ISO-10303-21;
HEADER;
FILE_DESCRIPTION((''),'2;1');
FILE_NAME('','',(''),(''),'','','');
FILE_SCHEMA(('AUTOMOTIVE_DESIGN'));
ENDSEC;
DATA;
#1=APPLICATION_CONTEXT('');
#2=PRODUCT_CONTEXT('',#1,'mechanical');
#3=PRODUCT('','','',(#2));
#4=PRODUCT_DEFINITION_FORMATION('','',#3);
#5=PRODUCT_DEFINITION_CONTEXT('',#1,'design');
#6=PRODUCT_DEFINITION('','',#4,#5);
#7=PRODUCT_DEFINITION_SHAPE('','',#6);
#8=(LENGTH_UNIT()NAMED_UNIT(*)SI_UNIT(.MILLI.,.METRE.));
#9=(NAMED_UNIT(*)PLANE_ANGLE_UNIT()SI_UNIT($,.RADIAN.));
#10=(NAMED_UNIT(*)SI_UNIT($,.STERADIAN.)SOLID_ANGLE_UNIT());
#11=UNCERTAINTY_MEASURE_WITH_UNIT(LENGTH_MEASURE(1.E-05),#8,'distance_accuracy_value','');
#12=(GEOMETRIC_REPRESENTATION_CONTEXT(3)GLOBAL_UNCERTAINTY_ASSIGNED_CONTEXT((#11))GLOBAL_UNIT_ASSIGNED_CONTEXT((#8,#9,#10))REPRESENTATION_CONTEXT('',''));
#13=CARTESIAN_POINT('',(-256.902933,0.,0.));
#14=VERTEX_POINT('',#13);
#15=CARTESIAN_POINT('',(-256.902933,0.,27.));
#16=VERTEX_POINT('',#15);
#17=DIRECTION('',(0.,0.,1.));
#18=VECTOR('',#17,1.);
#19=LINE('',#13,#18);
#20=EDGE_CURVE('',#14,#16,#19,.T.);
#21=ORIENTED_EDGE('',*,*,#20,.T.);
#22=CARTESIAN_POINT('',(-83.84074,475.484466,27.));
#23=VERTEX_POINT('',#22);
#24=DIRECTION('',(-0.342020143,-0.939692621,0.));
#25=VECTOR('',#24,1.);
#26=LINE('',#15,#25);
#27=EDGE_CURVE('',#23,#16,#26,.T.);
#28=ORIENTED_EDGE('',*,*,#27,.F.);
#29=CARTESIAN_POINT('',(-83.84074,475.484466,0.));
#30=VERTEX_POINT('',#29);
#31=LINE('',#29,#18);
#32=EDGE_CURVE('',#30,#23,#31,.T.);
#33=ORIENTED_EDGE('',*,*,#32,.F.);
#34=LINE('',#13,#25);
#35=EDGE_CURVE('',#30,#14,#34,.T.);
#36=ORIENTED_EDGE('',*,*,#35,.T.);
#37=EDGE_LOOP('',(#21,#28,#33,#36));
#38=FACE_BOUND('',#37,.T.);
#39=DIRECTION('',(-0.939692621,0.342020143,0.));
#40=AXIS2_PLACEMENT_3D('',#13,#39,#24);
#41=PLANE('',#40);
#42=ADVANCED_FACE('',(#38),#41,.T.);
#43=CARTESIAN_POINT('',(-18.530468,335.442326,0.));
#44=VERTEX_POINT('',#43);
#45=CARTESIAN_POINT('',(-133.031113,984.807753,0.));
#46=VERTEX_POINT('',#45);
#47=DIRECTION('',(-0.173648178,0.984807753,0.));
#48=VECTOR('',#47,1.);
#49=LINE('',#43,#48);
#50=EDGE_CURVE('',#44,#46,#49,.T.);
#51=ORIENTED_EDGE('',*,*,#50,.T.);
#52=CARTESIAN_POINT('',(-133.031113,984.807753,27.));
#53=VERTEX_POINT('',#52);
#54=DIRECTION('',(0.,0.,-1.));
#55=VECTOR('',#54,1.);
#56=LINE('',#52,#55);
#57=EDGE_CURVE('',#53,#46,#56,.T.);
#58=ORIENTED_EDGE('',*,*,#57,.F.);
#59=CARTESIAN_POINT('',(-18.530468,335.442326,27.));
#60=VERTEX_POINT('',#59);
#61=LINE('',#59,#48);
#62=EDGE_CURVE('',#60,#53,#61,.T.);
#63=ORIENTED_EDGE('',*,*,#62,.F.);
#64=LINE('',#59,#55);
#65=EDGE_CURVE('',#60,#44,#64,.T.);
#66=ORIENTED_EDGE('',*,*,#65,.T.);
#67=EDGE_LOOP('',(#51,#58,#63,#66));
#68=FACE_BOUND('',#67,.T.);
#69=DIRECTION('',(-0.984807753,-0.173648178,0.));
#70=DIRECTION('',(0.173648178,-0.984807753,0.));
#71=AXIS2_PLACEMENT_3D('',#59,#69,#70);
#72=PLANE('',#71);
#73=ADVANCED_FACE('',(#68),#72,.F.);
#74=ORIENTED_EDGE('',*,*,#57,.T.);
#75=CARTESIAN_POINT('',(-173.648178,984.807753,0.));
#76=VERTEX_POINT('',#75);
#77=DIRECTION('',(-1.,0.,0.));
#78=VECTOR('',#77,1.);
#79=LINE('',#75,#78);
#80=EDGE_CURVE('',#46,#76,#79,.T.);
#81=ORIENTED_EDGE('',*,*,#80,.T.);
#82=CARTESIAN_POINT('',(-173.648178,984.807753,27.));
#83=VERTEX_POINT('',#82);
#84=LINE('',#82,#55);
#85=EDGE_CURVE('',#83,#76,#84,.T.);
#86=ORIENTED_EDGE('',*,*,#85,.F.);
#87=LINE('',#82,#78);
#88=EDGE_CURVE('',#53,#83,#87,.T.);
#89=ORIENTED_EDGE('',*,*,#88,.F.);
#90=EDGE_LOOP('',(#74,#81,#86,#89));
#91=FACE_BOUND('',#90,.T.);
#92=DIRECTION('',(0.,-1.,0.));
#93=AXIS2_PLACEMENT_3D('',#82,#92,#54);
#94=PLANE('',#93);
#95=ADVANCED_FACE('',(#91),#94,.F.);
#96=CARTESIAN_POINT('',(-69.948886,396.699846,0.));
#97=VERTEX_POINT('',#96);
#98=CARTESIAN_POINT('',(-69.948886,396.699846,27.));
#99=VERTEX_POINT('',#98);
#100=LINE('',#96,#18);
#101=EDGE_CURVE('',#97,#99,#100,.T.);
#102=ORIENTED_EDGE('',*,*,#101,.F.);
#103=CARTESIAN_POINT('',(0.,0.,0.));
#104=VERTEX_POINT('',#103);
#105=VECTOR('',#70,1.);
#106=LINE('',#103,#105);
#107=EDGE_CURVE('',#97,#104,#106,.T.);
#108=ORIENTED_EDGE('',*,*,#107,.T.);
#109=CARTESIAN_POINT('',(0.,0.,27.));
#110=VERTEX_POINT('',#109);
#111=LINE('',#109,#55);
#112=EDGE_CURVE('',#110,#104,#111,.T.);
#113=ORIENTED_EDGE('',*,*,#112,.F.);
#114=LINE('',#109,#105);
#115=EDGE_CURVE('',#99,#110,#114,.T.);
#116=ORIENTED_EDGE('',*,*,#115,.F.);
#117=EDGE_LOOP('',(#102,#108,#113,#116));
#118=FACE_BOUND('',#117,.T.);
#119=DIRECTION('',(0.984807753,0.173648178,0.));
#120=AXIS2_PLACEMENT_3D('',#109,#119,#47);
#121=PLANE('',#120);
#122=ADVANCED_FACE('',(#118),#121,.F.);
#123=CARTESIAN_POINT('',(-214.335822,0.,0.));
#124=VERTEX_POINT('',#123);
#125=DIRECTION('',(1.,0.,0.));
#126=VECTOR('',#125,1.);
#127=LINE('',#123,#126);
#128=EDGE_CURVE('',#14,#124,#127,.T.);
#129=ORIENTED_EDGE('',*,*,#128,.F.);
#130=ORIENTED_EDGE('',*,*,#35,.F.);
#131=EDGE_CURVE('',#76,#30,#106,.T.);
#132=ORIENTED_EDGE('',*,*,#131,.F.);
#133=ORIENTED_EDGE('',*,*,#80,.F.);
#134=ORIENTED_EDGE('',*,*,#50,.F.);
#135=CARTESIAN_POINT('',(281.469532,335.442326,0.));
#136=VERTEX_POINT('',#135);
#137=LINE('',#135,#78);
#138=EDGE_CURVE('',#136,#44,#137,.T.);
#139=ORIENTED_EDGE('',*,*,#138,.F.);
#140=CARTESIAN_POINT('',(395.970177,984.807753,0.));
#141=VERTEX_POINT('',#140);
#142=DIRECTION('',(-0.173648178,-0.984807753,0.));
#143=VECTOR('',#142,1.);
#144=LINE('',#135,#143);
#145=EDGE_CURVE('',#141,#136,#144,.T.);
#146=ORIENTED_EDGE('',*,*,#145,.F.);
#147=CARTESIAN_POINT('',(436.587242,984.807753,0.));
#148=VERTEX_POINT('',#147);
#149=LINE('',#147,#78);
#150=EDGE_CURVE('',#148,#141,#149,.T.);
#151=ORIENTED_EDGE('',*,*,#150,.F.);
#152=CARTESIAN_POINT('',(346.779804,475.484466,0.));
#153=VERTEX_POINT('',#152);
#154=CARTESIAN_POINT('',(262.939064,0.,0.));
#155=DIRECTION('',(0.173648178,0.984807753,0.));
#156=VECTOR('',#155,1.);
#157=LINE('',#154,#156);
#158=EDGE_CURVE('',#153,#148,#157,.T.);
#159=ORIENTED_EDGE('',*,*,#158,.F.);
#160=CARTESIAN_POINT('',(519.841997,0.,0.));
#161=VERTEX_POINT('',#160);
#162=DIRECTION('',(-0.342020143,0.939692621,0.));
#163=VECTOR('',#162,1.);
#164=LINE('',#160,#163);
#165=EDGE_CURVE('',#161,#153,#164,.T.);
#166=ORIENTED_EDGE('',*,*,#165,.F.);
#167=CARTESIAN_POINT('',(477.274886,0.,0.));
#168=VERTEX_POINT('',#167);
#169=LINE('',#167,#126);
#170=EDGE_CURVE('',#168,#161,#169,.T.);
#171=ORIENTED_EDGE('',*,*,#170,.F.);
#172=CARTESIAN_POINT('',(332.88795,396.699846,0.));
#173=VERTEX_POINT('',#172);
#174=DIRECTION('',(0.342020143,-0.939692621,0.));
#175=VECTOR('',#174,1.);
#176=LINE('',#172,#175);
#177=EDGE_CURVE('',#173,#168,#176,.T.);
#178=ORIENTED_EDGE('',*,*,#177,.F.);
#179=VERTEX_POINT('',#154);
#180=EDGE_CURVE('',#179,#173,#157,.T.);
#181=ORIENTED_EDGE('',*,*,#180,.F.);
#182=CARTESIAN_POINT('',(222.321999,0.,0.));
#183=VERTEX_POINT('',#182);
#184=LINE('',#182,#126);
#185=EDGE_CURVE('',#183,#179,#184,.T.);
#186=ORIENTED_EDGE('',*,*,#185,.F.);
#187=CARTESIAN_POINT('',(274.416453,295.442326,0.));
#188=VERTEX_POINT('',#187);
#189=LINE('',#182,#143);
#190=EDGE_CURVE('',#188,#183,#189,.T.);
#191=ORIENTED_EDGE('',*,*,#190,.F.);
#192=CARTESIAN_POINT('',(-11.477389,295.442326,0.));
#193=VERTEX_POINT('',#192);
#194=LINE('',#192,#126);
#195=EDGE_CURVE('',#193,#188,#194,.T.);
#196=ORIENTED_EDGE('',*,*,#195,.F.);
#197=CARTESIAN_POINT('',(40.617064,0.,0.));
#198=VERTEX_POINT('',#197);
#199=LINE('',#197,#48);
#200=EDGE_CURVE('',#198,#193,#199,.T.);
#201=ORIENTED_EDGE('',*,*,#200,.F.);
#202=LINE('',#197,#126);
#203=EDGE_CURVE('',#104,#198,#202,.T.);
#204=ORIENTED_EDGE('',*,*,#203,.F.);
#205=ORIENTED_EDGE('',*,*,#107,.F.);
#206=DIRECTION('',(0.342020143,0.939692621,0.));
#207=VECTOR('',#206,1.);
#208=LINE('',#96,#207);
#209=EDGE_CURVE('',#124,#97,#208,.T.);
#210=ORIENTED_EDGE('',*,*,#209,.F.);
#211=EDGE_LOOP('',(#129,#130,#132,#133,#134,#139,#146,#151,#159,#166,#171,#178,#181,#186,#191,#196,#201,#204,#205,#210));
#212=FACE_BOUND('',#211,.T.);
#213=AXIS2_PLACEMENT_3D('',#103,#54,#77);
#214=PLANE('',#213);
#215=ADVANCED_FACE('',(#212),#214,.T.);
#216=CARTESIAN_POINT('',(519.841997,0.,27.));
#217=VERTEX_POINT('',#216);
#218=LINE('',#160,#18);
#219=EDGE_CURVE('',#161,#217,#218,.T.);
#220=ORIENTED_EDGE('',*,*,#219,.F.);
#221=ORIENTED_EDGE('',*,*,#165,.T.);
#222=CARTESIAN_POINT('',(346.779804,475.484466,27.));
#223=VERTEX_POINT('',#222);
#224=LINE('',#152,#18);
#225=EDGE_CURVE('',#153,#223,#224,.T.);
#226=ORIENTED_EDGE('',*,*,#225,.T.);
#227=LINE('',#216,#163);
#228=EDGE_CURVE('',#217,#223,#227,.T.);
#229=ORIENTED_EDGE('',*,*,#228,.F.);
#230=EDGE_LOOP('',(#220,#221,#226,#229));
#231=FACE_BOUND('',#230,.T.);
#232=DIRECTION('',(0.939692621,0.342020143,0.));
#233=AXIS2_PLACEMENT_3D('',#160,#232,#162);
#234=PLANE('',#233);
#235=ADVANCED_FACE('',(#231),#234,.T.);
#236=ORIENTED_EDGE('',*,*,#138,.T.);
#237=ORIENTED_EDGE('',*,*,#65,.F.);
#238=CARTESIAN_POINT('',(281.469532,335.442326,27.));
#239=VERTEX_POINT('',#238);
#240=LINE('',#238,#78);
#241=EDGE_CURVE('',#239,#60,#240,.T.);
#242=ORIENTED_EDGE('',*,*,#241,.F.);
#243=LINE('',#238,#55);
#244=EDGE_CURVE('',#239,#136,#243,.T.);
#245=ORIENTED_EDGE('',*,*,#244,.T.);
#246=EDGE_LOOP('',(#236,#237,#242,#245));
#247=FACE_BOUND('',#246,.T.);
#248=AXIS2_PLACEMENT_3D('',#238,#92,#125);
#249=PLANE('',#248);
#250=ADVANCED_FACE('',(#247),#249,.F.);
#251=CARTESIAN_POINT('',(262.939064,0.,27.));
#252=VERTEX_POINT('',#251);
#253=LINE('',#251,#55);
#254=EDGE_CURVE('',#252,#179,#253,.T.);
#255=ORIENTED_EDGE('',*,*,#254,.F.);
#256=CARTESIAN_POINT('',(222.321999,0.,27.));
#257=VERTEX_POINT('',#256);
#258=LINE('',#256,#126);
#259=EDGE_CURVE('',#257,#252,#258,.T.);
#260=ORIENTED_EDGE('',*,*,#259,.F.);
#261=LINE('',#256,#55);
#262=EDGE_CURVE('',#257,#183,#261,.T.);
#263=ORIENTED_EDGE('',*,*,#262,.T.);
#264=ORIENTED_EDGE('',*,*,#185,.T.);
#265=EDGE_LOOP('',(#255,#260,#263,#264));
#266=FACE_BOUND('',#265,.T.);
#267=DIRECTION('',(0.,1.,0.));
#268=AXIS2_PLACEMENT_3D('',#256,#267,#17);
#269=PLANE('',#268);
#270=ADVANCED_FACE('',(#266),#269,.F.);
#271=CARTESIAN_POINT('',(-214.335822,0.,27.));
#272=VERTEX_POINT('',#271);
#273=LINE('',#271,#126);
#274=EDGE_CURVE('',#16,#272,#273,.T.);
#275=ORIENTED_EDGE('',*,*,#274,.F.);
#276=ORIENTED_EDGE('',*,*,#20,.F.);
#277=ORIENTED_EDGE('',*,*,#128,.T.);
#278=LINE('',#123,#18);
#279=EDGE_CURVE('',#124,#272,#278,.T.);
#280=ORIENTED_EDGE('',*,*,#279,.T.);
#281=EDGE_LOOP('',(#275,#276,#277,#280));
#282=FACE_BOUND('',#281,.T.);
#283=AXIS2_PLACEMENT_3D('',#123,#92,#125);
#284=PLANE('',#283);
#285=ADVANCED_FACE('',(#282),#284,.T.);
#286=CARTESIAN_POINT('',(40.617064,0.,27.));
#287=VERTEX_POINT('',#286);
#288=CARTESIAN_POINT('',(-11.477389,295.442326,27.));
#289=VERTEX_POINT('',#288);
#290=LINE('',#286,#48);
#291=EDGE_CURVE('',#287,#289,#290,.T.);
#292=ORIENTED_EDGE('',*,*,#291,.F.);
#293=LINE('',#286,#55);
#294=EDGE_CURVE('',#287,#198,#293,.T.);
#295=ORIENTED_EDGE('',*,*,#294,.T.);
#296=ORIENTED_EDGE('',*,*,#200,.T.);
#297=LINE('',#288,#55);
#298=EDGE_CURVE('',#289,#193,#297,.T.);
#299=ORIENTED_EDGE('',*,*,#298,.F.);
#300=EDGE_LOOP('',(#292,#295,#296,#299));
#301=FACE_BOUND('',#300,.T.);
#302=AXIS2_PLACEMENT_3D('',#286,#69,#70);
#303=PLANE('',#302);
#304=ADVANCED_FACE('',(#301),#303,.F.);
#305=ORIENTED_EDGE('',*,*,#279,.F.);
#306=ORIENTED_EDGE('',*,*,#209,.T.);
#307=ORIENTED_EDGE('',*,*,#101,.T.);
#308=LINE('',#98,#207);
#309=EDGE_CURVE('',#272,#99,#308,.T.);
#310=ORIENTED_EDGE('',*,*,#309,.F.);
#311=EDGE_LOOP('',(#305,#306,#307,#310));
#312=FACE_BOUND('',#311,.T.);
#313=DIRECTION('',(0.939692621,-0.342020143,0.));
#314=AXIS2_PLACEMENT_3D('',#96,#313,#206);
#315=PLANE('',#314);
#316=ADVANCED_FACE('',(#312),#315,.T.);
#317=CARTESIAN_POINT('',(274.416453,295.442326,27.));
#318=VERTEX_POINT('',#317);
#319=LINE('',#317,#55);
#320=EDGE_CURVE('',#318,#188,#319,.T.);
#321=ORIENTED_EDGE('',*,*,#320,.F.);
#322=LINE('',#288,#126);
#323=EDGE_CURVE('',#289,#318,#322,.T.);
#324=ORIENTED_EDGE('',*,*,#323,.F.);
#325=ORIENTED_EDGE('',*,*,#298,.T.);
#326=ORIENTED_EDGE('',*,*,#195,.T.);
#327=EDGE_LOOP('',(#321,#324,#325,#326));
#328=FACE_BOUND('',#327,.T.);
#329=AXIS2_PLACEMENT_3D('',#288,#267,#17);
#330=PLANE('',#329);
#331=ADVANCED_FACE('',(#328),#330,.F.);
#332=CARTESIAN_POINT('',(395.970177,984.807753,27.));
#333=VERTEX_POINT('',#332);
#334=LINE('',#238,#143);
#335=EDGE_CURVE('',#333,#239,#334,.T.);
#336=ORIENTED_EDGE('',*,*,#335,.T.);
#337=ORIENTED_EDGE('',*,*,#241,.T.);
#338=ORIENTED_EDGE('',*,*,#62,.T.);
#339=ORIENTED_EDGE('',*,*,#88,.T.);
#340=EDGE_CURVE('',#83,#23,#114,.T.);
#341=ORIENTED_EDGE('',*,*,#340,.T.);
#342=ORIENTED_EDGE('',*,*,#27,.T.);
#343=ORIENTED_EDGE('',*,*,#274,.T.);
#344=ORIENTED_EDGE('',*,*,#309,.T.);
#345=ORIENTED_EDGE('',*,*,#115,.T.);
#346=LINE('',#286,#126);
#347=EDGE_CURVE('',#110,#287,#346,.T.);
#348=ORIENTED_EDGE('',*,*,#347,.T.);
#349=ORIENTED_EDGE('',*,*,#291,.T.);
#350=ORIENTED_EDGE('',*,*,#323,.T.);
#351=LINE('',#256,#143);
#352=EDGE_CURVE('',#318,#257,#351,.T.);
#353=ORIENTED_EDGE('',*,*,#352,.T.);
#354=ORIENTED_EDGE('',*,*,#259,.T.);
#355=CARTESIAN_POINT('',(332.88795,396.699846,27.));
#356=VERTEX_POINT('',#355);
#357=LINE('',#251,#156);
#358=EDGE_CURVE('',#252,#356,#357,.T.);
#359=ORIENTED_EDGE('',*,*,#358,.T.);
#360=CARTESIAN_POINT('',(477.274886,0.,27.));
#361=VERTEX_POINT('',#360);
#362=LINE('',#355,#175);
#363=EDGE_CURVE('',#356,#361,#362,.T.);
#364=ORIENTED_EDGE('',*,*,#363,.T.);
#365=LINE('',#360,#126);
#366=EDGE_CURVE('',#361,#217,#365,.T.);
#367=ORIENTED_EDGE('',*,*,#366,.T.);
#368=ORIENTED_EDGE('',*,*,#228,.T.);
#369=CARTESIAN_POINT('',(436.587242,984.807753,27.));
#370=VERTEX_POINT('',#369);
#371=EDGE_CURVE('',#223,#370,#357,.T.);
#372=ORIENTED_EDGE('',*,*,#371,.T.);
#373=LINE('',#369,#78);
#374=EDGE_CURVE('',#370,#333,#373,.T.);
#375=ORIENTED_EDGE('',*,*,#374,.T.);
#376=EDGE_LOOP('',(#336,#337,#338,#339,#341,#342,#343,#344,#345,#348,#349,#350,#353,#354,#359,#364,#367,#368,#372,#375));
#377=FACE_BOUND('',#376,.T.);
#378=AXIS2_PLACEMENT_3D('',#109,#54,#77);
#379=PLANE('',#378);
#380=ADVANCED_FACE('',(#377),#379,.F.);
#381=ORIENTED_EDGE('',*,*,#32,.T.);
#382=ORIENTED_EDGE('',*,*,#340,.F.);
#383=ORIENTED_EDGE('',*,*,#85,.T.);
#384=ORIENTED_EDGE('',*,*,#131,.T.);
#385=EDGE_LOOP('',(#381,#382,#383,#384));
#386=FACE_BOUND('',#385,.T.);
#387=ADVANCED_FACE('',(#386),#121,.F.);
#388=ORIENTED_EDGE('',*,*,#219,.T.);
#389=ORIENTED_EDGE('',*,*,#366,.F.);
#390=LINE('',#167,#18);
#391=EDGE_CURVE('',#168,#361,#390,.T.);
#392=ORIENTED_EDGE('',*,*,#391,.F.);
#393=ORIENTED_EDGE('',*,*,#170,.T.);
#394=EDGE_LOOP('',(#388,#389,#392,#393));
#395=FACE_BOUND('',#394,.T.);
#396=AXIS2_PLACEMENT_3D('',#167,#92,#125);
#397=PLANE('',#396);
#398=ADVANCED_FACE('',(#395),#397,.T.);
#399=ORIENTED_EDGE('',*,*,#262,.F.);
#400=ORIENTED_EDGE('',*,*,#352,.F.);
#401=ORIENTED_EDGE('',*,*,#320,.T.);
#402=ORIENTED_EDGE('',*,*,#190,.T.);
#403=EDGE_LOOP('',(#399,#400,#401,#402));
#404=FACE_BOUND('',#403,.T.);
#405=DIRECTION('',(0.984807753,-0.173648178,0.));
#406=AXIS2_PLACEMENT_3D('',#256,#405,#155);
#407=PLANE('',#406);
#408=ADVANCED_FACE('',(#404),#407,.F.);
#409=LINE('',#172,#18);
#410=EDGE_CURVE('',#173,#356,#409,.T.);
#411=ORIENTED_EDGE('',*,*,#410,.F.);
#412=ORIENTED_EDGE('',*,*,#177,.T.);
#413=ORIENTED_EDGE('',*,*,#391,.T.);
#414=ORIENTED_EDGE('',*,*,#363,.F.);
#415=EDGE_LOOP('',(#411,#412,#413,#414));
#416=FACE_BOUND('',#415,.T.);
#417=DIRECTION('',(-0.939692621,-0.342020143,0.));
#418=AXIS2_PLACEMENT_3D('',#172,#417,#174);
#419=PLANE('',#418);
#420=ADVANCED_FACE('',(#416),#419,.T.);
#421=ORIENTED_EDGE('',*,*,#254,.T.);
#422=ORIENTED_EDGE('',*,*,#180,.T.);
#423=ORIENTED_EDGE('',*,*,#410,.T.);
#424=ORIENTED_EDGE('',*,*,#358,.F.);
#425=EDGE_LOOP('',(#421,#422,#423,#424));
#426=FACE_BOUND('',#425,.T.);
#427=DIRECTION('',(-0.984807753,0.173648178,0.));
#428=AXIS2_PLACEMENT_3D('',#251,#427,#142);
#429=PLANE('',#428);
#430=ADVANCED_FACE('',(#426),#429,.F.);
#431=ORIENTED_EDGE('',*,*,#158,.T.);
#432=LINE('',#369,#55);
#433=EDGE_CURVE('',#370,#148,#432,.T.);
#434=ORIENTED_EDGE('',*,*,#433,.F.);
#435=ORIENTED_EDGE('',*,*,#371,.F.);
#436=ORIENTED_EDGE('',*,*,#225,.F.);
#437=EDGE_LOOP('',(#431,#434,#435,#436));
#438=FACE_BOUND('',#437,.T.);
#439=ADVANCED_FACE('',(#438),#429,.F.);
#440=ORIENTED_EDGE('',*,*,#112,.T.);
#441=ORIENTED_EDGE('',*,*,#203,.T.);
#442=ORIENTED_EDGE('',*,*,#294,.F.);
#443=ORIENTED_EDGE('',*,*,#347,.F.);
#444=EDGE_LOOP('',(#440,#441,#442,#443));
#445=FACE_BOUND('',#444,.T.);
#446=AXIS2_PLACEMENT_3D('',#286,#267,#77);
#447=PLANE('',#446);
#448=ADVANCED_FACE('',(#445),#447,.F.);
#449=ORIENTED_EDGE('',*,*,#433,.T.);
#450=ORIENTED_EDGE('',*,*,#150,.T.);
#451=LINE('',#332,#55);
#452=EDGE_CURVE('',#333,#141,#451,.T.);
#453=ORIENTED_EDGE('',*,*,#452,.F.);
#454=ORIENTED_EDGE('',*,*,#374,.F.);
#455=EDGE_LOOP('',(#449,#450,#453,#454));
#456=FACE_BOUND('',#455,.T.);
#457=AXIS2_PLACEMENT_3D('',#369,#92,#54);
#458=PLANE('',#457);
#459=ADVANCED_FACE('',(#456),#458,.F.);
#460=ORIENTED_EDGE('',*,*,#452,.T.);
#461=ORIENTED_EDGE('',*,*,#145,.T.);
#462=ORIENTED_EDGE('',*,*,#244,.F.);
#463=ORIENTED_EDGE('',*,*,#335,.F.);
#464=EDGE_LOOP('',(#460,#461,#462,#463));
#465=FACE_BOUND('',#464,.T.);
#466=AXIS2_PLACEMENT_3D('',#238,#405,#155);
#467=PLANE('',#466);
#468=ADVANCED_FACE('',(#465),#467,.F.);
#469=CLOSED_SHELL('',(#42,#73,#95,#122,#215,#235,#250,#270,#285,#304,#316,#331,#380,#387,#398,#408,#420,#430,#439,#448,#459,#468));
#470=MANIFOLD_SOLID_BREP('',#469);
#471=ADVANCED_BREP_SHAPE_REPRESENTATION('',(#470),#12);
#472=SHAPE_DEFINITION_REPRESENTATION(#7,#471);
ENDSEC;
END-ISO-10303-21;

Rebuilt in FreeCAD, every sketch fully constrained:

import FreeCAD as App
import Part
import Sketcher
from FreeCAD import Vector
Q = App.Units.Quantity


def add_polygon(sketch, points):
    """Adds a closed chain of lines whose ends are joined by coincident constraints."""
    first, n = sketch.GeometryCount, len(points)
    for a, b in zip(points, points[1:] + points[:1]):
        sketch.addGeometry(Part.LineSegment(App.Vector(*a, 0), App.Vector(*b, 0)), False)
    for i in range(n):
        sketch.addConstraint(Sketcher.Constraint("Coincident", first + i, 2, first + (i + 1) % n, 1))

doc = App.newDocument("Part")
body = doc.addObject("PartDesign::Body", "Body")

# Sketch on XY plane
sketch1 = body.newObject("Sketcher::SketchObject", "Sketch")
sketch1.AttachmentSupport = (doc.getObject("XY_Plane"), [""])
sketch1.MapMode = "FlatFace"
add_polygon(sketch1, [(-174, 985), (0, 0), (41, 0), (-11, 295), (274, 295), (222, 0), (263, 0), (437, 985), (396, 985), (281, 335), (-19, 335), (-133, 985)])  # lines 0-11
sketch1.addConstraint([
    Sketcher.Constraint("Horizontal", 1),
    Sketcher.Constraint("Horizontal", 3),
    Sketcher.Constraint("Horizontal", 5),
    Sketcher.Constraint("Horizontal", 7),
    Sketcher.Constraint("Horizontal", 9),
    Sketcher.Constraint("Horizontal", 11),
    Sketcher.Constraint("Coincident", 0, 2, -1, 1),
    Sketcher.Constraint("PointOnObject", 4, 2, -1),
    Sketcher.Constraint("Parallel", 0, 2),
    Sketcher.Constraint("Parallel", 4, 6),
    Sketcher.Constraint("Parallel", 6, 8),
    Sketcher.Constraint("Parallel", 2, 10),
    Sketcher.Constraint("Horizontal", 7, 2, 10, 2),
    Sketcher.Constraint("Equal", 1, 5),
    Sketcher.Constraint("Equal", 5, 7),
    Sketcher.Constraint("Equal", 7, 11),
    Sketcher.Constraint("Equal", 2, 4),
    Sketcher.Constraint("DistanceX", 9, 2, 9, 1, Q("300 mm")),
    Sketcher.Constraint("Angle", 0, Q("-80 deg")),
    Sketcher.Constraint("Distance", 0, Q("1000 mm")),
    Sketcher.Constraint("Distance", 2, Q("300 mm")),
    Sketcher.Constraint("DistanceY", 3, 2, 8, 2, Q("40 mm")),
    Sketcher.Constraint("DistanceX", -1, 1, 4, 2, Q("222.321999 mm")),
])
pad1 = body.newObject("PartDesign::Pad", "Pad")
pad1.Profile = sketch1
pad1.Length = 27

# Sketch on XY plane
sketch2 = body.newObject("Sketcher::SketchObject", "Sketch001")
sketch2.AttachmentSupport = (doc.getObject("XY_Plane"), [""])
sketch2.MapMode = "FlatFace"
sketch2.AttachmentOffset = App.Placement(Vector(0, 0, 27), App.Rotation())
add_polygon(sketch2, [(-214, 0), (-70, 397), (-84, 475), (-257, 0)])  # lines 0-3
add_polygon(sketch2, [(347, 475), (333, 397), (477, 0), (520, 0)])  # lines 4-7
sketch2.addConstraint([
    Sketcher.Constraint("Horizontal", 3),
    Sketcher.Constraint("Horizontal", 6),
    Sketcher.Constraint("PointOnObject", 2, 2, -1),
    Sketcher.Constraint("PointOnObject", 5, 2, -1),
    Sketcher.Constraint("Parallel", 0, 2),
    Sketcher.Constraint("Parallel", 5, 7),
    Sketcher.Constraint("Horizontal", 0, 2, 4, 2),
    Sketcher.Constraint("Horizontal", 1, 2, 7, 2),
    Sketcher.Constraint("Equal", 3, 6),
    Sketcher.Constraint("Equal", 1, 4),
    Sketcher.Constraint("Angle", 0, Q("70 deg")),
    Sketcher.Constraint("Angle", 1, Q("100 deg")),
    Sketcher.Constraint("Distance", 1, Q("80 mm")),
    Sketcher.Constraint("Distance", 2, Q("506 mm")),
    Sketcher.Constraint("DistanceX", 1, 2, -1, 1, Q("83.84074 mm")),
    Sketcher.Constraint("DistanceX", -1, 1, 4, 2, Q("332.88795 mm")),
])
pad2 = body.newObject("PartDesign::Pad", "Pad001")
pad2.Profile = sketch2
pad2.Length = 27
pad2.Reversed = True

doc.recompute()
